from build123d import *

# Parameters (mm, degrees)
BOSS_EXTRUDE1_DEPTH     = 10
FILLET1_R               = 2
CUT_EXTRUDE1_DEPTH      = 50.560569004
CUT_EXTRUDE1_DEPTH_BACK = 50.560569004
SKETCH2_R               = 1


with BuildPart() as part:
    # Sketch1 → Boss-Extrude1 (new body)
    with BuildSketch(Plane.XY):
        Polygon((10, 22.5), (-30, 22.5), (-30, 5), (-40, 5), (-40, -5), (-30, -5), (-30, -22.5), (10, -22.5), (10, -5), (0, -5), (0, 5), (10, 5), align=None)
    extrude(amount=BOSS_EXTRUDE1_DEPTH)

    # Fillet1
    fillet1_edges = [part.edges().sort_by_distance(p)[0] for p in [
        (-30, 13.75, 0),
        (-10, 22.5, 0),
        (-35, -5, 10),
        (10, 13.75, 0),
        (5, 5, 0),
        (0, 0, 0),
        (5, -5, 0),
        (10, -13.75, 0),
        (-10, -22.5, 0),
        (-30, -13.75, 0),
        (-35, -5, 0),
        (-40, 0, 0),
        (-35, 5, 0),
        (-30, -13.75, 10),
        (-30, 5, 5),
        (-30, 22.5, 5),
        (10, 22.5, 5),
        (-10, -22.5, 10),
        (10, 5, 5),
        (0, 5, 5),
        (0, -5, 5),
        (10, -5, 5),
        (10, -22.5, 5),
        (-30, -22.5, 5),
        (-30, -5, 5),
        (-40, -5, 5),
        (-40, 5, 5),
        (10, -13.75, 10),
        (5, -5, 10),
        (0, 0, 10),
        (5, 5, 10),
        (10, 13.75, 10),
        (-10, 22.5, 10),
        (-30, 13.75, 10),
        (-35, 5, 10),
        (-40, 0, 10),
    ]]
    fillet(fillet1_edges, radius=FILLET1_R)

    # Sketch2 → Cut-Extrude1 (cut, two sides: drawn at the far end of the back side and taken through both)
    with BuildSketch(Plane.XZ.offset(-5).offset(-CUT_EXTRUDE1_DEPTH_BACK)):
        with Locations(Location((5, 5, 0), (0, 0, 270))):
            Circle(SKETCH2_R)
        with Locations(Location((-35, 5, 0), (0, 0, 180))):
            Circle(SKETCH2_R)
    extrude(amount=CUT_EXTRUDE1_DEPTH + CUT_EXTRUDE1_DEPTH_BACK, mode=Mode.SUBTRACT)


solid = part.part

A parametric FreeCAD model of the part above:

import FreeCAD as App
import Part
import Sketcher

V = App.Vector
Q = App.Units.Quantity


def add_polygon(sketch, points):
    """Adds a closed chain of lines whose ends are joined by coincident constraints."""
    first, n = sketch.GeometryCount, len(points)
    for a, b in zip(points, points[1:] + points[:1]):
        sketch.addGeometry(Part.LineSegment(App.Vector(*a, 0), App.Vector(*b, 0)), False)
    for i in range(n):
        sketch.addConstraint(Sketcher.Constraint("Coincident", first + i, 2, first + (i + 1) % n, 1))

doc = App.newDocument("Part")
body = doc.addObject("PartDesign::Body", "Body")

sketch1 = body.newObject("Sketcher::SketchObject", "Sketch")
sketch1.AttachmentSupport = (doc.getObject("XY_Plane"), [""])
sketch1.MapMode = "FlatFace"
add_polygon(sketch1, [(10, 22), (-30, 22), (-30, 5), (-40, 5), (-40, -5), (-30, -5), (-30, -22), (10, -22), (10, -5), (0, -5), (0, 5), (10, 5)])
sketch1.addConstraint([
    Sketcher.Constraint("Horizontal", 0),
    Sketcher.Constraint("Vertical", 1),
    Sketcher.Constraint("Horizontal", 2),
    Sketcher.Constraint("Vertical", 3),
    Sketcher.Constraint("Horizontal", 4),
    Sketcher.Constraint("Vertical", 5),
    Sketcher.Constraint("Horizontal", 6),
    Sketcher.Constraint("Vertical", 7),
    Sketcher.Constraint("Horizontal", 8),
    Sketcher.Constraint("Vertical", 9),
    Sketcher.Constraint("Horizontal", 10),
    Sketcher.Constraint("Vertical", 11),
    Sketcher.Constraint("Symmetric", 8, 2, 9, 2, -1, 1),
    Sketcher.Constraint("Symmetric", 1, 2, 4, 2, -1),
    Sketcher.Constraint("Symmetric", 6, 2, 11, 2, -1),
    Sketcher.Constraint("Horizontal", 4, 2, 7, 2),
    Sketcher.Constraint("Equal", 4, 8),
    Sketcher.Constraint("Equal", 10, 3),
    Sketcher.Constraint("DistanceX", 0, 2, 0, 1, Q("40 mm")),
    Sketcher.Constraint("DistanceX", 2, 2, 2, 1, Q("10 mm")),
    Sketcher.Constraint("DistanceY", 1, 2, 1, 1, Q("17.5 mm")),
])
pad1 = body.newObject("PartDesign::Pad", "Pad")
pad1.Profile = sketch1
pad1.Length = 10
doc.recompute()

fillet = body.newObject("PartDesign::Fillet", "Fillet")
fillet.Base = (pad1, ["Edge1"])
fillet.UseAllEdges = True
fillet.Radius = 2

sketch2 = body.newObject("Sketcher::SketchObject", "Sketch001")
sketch2.AttachmentSupport = (doc.getObject("XZ_Plane"), [""])
sketch2.MapMode = "FlatFace"
sketch2.AttachmentOffset = App.Placement(V(0, 0, -5), App.Rotation())
sketch2.addGeometry([
    Part.Circle(V(5, 5, 0), V(0, 0, 1), 1),
    Part.Circle(V(-35, 5, 0), V(0, 0, 1), 1),
], False)
sketch2.addConstraint([
    Sketcher.Constraint("Equal", 0, 1),
    Sketcher.Constraint("Horizontal", 0, 3, 1, 3),
    Sketcher.Constraint("Diameter", 0, Q("2 mm")),
    Sketcher.Constraint("DistanceX", -1, 1, 0, 3, Q("5 mm")),
    Sketcher.Constraint("DistanceY", -1, 1, 0, 3, Q("5 mm")),
    Sketcher.Constraint("DistanceX", 1, 3, -1, 1, Q("35 mm")),
])
pocket1 = body.newObject("PartDesign::Pocket", "Pocket")
pocket1.Profile = sketch2
pocket1.Type = "ThroughAll"
pocket1.Midplane = True

doc.recompute()
